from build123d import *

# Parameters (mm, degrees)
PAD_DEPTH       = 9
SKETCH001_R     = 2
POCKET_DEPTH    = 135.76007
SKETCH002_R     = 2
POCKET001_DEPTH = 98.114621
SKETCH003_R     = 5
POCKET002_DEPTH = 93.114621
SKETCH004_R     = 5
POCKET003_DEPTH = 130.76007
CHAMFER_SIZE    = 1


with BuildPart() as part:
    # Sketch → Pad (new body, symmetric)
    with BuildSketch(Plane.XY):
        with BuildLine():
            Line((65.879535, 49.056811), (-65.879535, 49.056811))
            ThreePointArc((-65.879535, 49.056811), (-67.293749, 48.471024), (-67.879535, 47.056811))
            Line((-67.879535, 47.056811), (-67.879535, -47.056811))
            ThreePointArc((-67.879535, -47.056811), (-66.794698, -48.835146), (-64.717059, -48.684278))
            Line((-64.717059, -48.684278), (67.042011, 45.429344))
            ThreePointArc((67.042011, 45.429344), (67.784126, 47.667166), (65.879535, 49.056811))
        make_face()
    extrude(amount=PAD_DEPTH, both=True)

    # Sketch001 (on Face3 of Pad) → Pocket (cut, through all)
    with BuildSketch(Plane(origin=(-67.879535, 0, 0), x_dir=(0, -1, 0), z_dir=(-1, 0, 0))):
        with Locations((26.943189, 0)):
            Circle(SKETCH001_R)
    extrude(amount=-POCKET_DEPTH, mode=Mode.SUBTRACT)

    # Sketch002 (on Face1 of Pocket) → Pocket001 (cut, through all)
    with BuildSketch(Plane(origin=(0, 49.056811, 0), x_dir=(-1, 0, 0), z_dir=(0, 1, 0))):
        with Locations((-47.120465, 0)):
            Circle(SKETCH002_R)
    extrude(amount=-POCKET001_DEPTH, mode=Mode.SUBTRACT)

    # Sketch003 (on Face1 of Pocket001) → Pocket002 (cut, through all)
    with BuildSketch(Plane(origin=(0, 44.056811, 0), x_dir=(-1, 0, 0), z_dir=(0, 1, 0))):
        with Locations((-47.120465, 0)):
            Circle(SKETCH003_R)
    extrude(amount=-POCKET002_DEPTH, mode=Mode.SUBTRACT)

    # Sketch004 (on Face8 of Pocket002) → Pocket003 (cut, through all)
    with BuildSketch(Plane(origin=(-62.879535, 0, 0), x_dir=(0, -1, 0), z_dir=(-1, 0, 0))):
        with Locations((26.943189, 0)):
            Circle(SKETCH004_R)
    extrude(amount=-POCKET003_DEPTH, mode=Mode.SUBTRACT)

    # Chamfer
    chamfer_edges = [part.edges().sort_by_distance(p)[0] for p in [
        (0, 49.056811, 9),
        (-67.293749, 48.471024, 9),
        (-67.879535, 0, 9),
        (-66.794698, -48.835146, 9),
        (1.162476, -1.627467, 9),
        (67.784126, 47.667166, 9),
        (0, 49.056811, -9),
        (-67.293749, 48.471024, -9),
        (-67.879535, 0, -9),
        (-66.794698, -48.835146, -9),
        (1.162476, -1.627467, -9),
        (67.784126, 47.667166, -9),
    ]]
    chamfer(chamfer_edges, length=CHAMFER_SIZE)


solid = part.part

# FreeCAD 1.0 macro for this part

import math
import FreeCAD as App
import Part
import Sketcher
from FreeCAD import Vector


def edges_at(feature, points):
    """Names of the edges that pass closest to the given points."""
    edges = feature.Shape.Edges
    near = lambda p: min(range(len(edges)), key=lambda i: edges[i].distToShape(Part.Vertex(*p))[0])
    return sorted({f"Edge{near(p) + 1}" for p in points})

doc = App.newDocument("Part")
params = doc.addObject("Spreadsheet::Sheet", "Params")
for row, (alias, value) in enumerate([
    ("sketch1_radius", "2 mm"),
    ("pad1_length", "18 mm"),
    ("sketch2_diameter", "4 mm"),
    ("sketch3_diameter", "4 mm"),
    ("sketch4_diameter", "10 mm"),
    ("sketch5_diameter", "10 mm"),
    ("chamfer_size", "1 mm"),
], start=1):
    params.set(f"A{row}", alias)
    params.set(f"B{row}", "=" + value)
    params.setAlias(f"B{row}", alias)

body = doc.addObject("PartDesign::Body", "Body")

# Sketch on XY plane
sketch1 = body.newObject("Sketcher::SketchObject", "Sketch")
sketch1.AttachmentSupport = (doc.getObject("XY_Plane"), [""])
sketch1.MapMode = "FlatFace"
sketch1.addGeometry([
    Part.LineSegment(Vector(65.9, 49.1, 0), Vector(-65.9, 49.1, 0)),  # 0
    Part.ArcOfCircle(Part.Circle(Vector(-65.9, 47.1, 0), Vector(0, 0, 1), 2), math.radians(90), math.radians(180)),  # 1
    Part.LineSegment(Vector(-67.9, 47.1, 0), Vector(-67.9, -47.1, 0)),  # 2
    Part.ArcOfCircle(Part.Circle(Vector(-65.9, -47.1, 0), Vector(0, 0, 1), 2), math.radians(-180), math.radians(-54)),  # 3
    Part.LineSegment(Vector(-64.7, -48.7, 0), Vector(67, 45.4, 0)),  # 4
    Part.ArcOfCircle(Part.Circle(Vector(65.9, 47.1, 0), Vector(0, 0, 1), 2), math.radians(-54), math.radians(90)),  # 5
], False)
sketch1.addConstraint([
    Sketcher.Constraint("Tangent", 0, 2, 1, 1),
    Sketcher.Constraint("Tangent", 1, 2, 2, 1),
    Sketcher.Constraint("Tangent", 2, 2, 3, 1),
    Sketcher.Constraint("Tangent", 3, 2, 4, 1),
    Sketcher.Constraint("Tangent", 4, 2, 5, 1),
    Sketcher.Constraint("Tangent", 5, 2, 0, 1),
    Sketcher.Constraint("Horizontal", 0),
    Sketcher.Constraint("Vertical", 2),
    Sketcher.Constraint("Equal", 1, 3),
    Sketcher.Constraint("Equal", 3, 5),
    Sketcher.Constraint("Symmetric", 3, 3, 5, 3, -1, 1),
    Sketcher.Constraint("Radius", 1, 2.0),
    Sketcher.Constraint("DistanceX", 0, 2, 0, 1, 131.75907),
    Sketcher.Constraint("DistanceY", 2, 2, 2, 1, 94.113622),
])
sketch1.setExpression("Constraints[11]", "Params.sketch1_radius")
pad1 = body.newObject("PartDesign::Pad", "Pad")
pad1.Profile = sketch1
pad1.setExpression("Length", "Params.pad1_length")
pad1.Midplane = True

# Sketch on YZ plane
sketch2 = body.newObject("Sketcher::SketchObject", "Sketch001")
sketch2.AttachmentSupport = (doc.getObject("YZ_Plane"), [""])
sketch2.MapMode = "FlatFace"
sketch2.AttachmentOffset = App.Placement(Vector(0, 0, -67.879535), App.Rotation())
sketch2.addGeometry(Part.Circle(Vector(-26.9, 0, 0), Vector(0, 0, 1), 2), False)
sketch2.addConstraint([
    Sketcher.Constraint("PointOnObject", 0, 3, -1),
    Sketcher.Constraint("Diameter", 0, 4.0),
    Sketcher.Constraint("DistanceX", 0, 3, -1, 1, 26.943189),
])
sketch2.setExpression("Constraints[1]", "Params.sketch2_diameter")
pocket1 = body.newObject("PartDesign::Pocket", "Pocket")
pocket1.Profile = sketch2
pocket1.Type = "ThroughAll"
pocket1.Reversed = True

# Sketch on XZ plane
sketch3 = body.newObject("Sketcher::SketchObject", "Sketch002")
sketch3.AttachmentSupport = (doc.getObject("XZ_Plane"), [""])
sketch3.MapMode = "FlatFace"
sketch3.AttachmentOffset = App.Placement(Vector(0, 0, -49.056811), App.Rotation())
sketch3.addGeometry(Part.Circle(Vector(47.1, 0, 0), Vector(0, 0, 1), 2), False)
sketch3.addConstraint([
    Sketcher.Constraint("PointOnObject", 0, 3, -1),
    Sketcher.Constraint("Diameter", 0, 4.0),
    Sketcher.Constraint("DistanceX", -1, 1, 0, 3, 47.120465),
])
sketch3.setExpression("Constraints[1]", "Params.sketch3_diameter")
pocket2 = body.newObject("PartDesign::Pocket", "Pocket001")
pocket2.Profile = sketch3
pocket2.Type = "ThroughAll"
pocket2.Reversed = True

# Sketch on XZ plane
sketch4 = body.newObject("Sketcher::SketchObject", "Sketch003")
sketch4.AttachmentSupport = (doc.getObject("XZ_Plane"), [""])
sketch4.MapMode = "FlatFace"
sketch4.AttachmentOffset = App.Placement(Vector(0, 0, -44.056811), App.Rotation())
sketch4.addGeometry(Part.Circle(Vector(47, 0, 0), Vector(0, 0, 1), 5), False)
sketch4.addConstraint([
    Sketcher.Constraint("PointOnObject", 0, 3, -1),
    Sketcher.Constraint("Diameter", 0, 10.0),
    Sketcher.Constraint("DistanceX", -1, 1, 0, 3, 47.120465),
])
sketch4.setExpression("Constraints[1]", "Params.sketch4_diameter")
pocket3 = body.newObject("PartDesign::Pocket", "Pocket002")
pocket3.Profile = sketch4
pocket3.Type = "ThroughAll"
pocket3.Reversed = True

# Sketch on YZ plane
sketch5 = body.newObject("Sketcher::SketchObject", "Sketch004")
sketch5.AttachmentSupport = (doc.getObject("YZ_Plane"), [""])
sketch5.MapMode = "FlatFace"
sketch5.AttachmentOffset = App.Placement(Vector(0, 0, -62.879535), App.Rotation())
sketch5.addGeometry(Part.Circle(Vector(-27, 0, 0), Vector(0, 0, 1), 5), False)
sketch5.addConstraint([
    Sketcher.Constraint("PointOnObject", 0, 3, -1),
    Sketcher.Constraint("Diameter", 0, 10.0),
    Sketcher.Constraint("DistanceX", 0, 3, -1, 1, 26.943189),
])
sketch5.setExpression("Constraints[1]", "Params.sketch5_diameter")
pocket4 = body.newObject("PartDesign::Pocket", "Pocket003")
pocket4.Profile = sketch5
pocket4.Type = "ThroughAll"
pocket4.Reversed = True
doc.recompute()

chamfer = body.newObject("PartDesign::Chamfer", "Chamfer")
chamfer.Base = (pocket4, edges_at(pocket4, [
    (0, 49.057, 9),
    (-67.294, 48.471, 9),
    (-67.88, 0, 9),
    (-66.795, -48.835, 9),
    (1.162, -1.627, 9),
    (67.784, 47.667, 9),
    (0, 49.057, -9),
    (-67.294, 48.471, -9),
    (-67.88, 0, -9),
    (-66.795, -48.835, -9),
    (1.162, -1.627, -9),
    (67.784, 47.667, -9),
]))
chamfer.setExpression("Size", "Params.chamfer_size")

doc.recompute()
